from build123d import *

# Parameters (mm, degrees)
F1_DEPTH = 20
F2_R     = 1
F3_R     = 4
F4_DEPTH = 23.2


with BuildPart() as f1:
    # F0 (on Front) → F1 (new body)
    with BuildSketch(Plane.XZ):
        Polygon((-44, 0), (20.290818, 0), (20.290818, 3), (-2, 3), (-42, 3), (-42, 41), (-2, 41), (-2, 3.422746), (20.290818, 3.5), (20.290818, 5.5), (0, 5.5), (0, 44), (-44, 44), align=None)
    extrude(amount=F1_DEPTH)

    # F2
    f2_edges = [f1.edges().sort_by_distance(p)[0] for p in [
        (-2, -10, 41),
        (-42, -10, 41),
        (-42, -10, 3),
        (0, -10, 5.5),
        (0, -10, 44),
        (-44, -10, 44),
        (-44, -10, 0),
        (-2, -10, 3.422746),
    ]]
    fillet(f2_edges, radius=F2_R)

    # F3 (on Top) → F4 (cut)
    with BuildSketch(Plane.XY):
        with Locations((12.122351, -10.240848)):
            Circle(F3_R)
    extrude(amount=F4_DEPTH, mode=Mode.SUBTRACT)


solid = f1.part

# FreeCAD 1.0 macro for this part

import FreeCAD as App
import Part
import Sketcher


def edges_at(feature, points):
    """Names of the edges that pass closest to the given points."""
    edges = feature.Shape.Edges
    near = lambda p: min(range(len(edges)), key=lambda i: edges[i].distToShape(Part.Vertex(*p))[0])
    return sorted({f"Edge{near(p) + 1}" for p in points})


def add_polygon(sketch, points):
    """Adds a closed chain of lines whose ends are joined by coincident constraints."""
    first, n = sketch.GeometryCount, len(points)
    for a, b in zip(points, points[1:] + points[:1]):
        sketch.addGeometry(Part.LineSegment(App.Vector(*a, 0), App.Vector(*b, 0)), False)
    for i in range(n):
        sketch.addConstraint(Sketcher.Constraint("Coincident", first + i, 2, first + (i + 1) % n, 1))

doc = App.newDocument("Part")
body = doc.addObject("PartDesign::Body", "Body")

# Sketch on XZ plane
sketch1 = body.newObject("Sketcher::SketchObject", "Sketch")
sketch1.AttachmentSupport = (doc.getObject("XZ_Plane"), [""])
sketch1.MapMode = "FlatFace"
add_polygon(sketch1, [(-44, 0), (20.3, 0), (20.3, 3), (-42, 3), (-42, 41), (-2, 41), (-2, 3.4), (20.3, 3.5), (20.3, 5.5), (0, 5.5), (0, 44), (-44, 44)])  # lines 0-11
sketch1.addConstraint([
    Sketcher.Constraint("Horizontal", 0),
    Sketcher.Constraint("Vertical", 1),
    Sketcher.Constraint("Horizontal", 2),
    Sketcher.Constraint("Vertical", 3),
    Sketcher.Constraint("Horizontal", 4),
    Sketcher.Constraint("Vertical", 5),
    Sketcher.Constraint("Vertical", 7),
    Sketcher.Constraint("Horizontal", 8),
    Sketcher.Constraint("Vertical", 9),
    Sketcher.Constraint("Horizontal", 10),
    Sketcher.Constraint("Vertical", 11),
    Sketcher.Constraint("PointOnObject", 0, 2, -1),
    Sketcher.Constraint("PointOnObject", 8, 2, -2),
    Sketcher.Constraint("Vertical", 1, 2, 6, 2),
    Sketcher.Constraint("Equal", 10, 11),
    Sketcher.Constraint("DistanceX", 4, 1, 4, 2, 40.0),
    Sketcher.Constraint("DistanceX", 10, 2, 10, 1, 44.0),
    Sketcher.Constraint("DistanceY", 1, 1, 1, 2, 3.0),
    Sketcher.Constraint("DistanceY", 3, 1, 3, 2, 38.0),
    Sketcher.Constraint("DistanceY", 7, 1, 7, 2, 2.0),
    Sketcher.Constraint("DistanceY", 9, 1, 9, 2, 38.5),
    Sketcher.Constraint("DistanceX", 2, 2, -1, 1, 42.0),
    Sketcher.Constraint("DistanceX", 0, 1, 0, 2, 64.290818),
    Sketcher.Constraint("DistanceY", 5, 2, 5, 1, 37.577254),
])
pad1 = body.newObject("PartDesign::Pad", "Pad")
pad1.Profile = sketch1
pad1.Length = 20
doc.recompute()

fillet = body.newObject("PartDesign::Fillet", "Fillet")
fillet.Base = (pad1, edges_at(pad1, [
    (-2, -10, 41),
    (-42, -10, 41),
    (-42, -10, 3),
    (0, -10, 5.5),
    (0, -10, 44),
    (-44, -10, 44),
    (-44, -10, 0),
    (-2, -10, 3.423),
]))
fillet.Radius = 1

# Sketch on XY plane
sketch2 = body.newObject("Sketcher::SketchObject", "Sketch001")
sketch2.AttachmentSupport = (doc.getObject("XY_Plane"), [""])
sketch2.MapMode = "FlatFace"
sketch2.addGeometry(Part.Circle(App.Vector(12.1, -10.2, 0), App.Vector(0, 0, 1), 4), False)
sketch2.addConstraint([
    Sketcher.Constraint("Diameter", 0, 8.0),
    Sketcher.Constraint("DistanceX", -1, 1, 0, 3, 12.122351),
    Sketcher.Constraint("DistanceY", 0, 3, -1, 1, 10.240848),
])
pocket1 = body.newObject("PartDesign::Pocket", "Pocket")
pocket1.Profile = sketch2
pocket1.Length = 23.2
pocket1.Reversed = True

doc.recompute()
